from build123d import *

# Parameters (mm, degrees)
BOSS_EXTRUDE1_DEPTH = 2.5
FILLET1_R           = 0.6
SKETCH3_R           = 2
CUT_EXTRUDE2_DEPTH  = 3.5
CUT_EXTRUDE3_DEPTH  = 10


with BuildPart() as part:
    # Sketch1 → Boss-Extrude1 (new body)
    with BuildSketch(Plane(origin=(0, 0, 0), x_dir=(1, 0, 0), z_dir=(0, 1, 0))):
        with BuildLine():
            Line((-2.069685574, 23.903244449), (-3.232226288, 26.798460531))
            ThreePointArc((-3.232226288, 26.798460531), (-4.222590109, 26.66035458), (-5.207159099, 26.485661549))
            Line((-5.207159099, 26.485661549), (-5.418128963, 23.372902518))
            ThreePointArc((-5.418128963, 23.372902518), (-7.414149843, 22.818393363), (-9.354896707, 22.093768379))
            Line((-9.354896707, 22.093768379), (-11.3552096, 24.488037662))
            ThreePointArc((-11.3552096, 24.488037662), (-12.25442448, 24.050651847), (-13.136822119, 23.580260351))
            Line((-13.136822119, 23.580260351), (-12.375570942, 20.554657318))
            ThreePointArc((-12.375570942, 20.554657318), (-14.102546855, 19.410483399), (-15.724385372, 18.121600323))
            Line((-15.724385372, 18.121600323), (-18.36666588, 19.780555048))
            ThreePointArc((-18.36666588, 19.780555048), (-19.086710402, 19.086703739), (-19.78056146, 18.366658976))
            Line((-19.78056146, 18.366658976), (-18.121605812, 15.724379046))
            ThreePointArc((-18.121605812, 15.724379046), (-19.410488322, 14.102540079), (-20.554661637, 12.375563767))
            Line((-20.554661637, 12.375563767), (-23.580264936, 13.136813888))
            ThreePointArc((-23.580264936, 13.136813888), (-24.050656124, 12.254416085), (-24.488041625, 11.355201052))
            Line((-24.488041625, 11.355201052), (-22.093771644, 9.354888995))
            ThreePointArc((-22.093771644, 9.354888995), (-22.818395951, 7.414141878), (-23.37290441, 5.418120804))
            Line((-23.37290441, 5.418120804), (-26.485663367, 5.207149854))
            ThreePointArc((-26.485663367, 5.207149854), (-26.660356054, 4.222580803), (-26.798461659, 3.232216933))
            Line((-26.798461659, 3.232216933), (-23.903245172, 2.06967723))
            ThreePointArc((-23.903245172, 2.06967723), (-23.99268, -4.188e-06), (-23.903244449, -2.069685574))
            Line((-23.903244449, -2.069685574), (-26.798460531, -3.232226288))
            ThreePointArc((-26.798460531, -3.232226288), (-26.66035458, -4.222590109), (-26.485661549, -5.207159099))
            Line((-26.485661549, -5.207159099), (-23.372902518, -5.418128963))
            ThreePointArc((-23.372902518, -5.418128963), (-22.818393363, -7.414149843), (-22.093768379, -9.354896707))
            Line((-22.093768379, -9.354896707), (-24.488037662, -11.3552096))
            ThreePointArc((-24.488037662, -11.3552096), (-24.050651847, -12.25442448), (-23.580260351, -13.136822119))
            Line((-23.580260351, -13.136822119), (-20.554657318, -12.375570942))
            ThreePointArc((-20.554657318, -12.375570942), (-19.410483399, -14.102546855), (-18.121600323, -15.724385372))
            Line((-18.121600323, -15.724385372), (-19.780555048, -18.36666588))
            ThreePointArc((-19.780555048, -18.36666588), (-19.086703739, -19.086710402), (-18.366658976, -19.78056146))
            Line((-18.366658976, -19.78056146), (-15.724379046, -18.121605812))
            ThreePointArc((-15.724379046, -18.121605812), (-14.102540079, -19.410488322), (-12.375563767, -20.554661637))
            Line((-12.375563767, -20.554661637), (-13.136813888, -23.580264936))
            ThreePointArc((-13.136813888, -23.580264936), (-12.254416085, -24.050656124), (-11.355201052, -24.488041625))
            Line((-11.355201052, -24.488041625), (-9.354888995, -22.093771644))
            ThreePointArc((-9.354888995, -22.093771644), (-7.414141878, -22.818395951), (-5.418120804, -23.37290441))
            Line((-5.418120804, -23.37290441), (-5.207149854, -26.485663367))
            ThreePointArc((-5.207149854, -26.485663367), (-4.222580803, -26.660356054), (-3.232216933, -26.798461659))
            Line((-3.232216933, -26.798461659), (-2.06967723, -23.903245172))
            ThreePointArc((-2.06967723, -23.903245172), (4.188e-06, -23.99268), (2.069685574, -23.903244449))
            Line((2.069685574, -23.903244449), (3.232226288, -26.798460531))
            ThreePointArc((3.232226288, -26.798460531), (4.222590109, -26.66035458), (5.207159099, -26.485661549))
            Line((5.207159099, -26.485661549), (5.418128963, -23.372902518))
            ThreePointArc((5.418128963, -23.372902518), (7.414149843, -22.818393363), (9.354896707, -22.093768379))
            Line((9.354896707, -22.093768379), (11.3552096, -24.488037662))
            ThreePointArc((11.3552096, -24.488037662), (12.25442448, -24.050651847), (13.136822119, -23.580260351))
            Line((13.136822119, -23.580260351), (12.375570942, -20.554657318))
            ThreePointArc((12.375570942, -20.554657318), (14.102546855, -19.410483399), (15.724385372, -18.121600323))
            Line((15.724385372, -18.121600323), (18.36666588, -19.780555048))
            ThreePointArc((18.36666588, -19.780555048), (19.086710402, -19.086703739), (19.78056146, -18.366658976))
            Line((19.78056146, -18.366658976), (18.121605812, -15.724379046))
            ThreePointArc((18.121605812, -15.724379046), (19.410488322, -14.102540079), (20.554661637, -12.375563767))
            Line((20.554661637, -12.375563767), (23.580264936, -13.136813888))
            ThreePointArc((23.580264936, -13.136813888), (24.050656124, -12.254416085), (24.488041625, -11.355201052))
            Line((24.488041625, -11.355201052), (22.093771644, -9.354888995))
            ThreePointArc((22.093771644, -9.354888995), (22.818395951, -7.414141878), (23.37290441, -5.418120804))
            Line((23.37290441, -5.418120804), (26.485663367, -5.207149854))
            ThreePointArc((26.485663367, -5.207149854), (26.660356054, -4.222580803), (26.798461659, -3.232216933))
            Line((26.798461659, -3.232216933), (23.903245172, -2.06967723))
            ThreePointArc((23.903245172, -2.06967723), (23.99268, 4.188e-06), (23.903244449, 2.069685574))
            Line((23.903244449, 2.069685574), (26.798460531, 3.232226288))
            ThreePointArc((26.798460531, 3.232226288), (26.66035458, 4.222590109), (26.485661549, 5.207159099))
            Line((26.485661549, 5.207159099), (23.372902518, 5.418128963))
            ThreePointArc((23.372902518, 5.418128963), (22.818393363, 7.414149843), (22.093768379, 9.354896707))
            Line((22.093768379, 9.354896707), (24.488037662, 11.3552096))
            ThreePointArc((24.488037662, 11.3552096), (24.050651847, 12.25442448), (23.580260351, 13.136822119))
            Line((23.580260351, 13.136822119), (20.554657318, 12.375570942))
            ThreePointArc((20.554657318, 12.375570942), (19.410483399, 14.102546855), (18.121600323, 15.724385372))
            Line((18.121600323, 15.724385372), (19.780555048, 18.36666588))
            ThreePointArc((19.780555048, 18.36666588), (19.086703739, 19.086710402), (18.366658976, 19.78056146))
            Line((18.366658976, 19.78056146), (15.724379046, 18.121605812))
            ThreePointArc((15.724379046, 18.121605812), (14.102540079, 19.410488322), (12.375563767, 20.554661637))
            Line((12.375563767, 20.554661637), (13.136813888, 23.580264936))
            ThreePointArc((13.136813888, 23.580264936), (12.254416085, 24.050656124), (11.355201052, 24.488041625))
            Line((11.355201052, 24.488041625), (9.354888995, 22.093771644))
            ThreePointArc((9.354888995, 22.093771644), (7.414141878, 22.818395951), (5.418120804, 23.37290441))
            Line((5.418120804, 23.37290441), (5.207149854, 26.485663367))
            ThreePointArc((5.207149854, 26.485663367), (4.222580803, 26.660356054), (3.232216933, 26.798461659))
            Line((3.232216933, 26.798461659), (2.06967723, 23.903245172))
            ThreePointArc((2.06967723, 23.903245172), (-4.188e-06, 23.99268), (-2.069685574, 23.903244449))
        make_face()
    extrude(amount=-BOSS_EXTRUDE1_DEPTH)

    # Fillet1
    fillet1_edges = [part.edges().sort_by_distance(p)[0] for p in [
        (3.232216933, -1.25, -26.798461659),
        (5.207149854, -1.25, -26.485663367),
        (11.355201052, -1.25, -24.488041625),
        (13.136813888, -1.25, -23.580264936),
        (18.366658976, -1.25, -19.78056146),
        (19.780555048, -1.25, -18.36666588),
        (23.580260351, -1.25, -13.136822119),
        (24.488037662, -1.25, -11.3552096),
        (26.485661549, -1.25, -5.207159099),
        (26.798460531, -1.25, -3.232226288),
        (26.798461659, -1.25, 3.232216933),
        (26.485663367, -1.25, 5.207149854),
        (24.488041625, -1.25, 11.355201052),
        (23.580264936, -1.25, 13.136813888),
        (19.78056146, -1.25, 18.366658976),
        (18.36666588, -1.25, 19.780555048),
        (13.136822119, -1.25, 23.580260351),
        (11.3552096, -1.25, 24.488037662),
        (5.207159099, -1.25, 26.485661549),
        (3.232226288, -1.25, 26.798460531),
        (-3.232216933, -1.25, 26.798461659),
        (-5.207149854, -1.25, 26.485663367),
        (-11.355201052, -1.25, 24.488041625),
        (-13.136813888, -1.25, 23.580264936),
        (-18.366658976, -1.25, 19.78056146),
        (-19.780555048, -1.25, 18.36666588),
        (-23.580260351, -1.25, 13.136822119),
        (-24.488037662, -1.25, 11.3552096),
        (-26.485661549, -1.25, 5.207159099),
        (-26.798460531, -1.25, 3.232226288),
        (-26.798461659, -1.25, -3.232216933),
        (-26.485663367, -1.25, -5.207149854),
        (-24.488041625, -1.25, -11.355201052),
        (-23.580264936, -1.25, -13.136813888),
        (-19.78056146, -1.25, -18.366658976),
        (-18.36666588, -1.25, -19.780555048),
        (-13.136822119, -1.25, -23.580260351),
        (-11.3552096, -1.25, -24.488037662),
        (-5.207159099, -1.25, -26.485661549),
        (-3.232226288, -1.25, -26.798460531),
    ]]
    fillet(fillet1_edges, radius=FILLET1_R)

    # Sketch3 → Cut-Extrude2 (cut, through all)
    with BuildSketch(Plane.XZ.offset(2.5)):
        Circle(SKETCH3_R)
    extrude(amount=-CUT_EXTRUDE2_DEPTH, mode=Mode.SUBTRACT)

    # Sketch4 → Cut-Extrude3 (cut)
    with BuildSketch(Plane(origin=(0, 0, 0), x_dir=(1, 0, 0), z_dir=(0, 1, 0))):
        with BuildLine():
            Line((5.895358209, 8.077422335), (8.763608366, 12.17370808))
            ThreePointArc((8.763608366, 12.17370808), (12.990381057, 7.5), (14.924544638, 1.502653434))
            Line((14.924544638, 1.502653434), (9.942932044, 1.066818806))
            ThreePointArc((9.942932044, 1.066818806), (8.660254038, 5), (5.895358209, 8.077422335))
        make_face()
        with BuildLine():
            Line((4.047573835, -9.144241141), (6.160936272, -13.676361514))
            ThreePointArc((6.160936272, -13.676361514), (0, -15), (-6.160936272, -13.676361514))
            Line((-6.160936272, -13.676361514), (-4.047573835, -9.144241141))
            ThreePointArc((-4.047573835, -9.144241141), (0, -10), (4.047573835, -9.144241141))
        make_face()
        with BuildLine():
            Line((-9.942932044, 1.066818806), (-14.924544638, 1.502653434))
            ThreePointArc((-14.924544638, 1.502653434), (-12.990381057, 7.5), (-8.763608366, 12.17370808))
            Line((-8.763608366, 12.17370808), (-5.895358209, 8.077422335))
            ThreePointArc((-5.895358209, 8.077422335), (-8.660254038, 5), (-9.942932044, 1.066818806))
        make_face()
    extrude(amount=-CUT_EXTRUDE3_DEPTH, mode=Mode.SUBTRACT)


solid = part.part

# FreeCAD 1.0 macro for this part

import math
import FreeCAD as App
import Part
import Sketcher
Q = App.Units.Quantity


def edges_at(feature, points):
    """Names of the edges that pass closest to the given points."""
    edges = feature.Shape.Edges
    near = lambda p: min(range(len(edges)), key=lambda i: edges[i].distToShape(Part.Vertex(*p))[0])
    return sorted({f"Edge{near(p) + 1}" for p in points})

doc = App.newDocument("Part")
params = doc.addObject("Spreadsheet::Sheet", "Params")
for row, (alias, value) in enumerate([
    ("pad1_length", "2.5 mm"),
    ("fillet_radius", "0.6 mm"),
    ("sketch2_diameter", "4 mm"),
    ("sketch3_radius", "10 mm"),
    ("sketch3_radius2", "15 mm"),
    ("pocket2_length", "10 mm"),
], start=1):
    params.set(f"A{row}", alias)
    params.set(f"B{row}", "=" + value)
    params.setAlias(f"B{row}", alias)

body = doc.addObject("PartDesign::Body", "Body")

# Sketch on XZ plane
sketch1 = doc.addObject("Sketcher::SketchObject", "Sketch")
body.addObject(sketch1)
sketch1.AttachmentSupport = (doc.XZ_Plane, [""])
sketch1.MapMode = "FlatFace"
sketch1.addGeometry(Part.LineSegment(App.Vector(-2.1, -23.9, 0), App.Vector(-3.2, -26.8, 0)), False)
sketch1.addGeometry(Part.ArcOfCircle(Part.Circle(App.Vector(0, 0, 0), App.Vector(0, 0, 1), 27), math.radians(-101.12), math.radians(-96.88)), False)
sketch1.addGeometry(Part.LineSegment(App.Vector(-5.2, -26.5, 0), App.Vector(-5.4, -23.4, 0)), False)
sketch1.addGeometry(Part.ArcOfCircle(Part.Circle(App.Vector(0, 0, 0), App.Vector(0, 0, 1), 24), math.radians(-112.95), math.radians(-103.05)), False)
sketch1.addGeometry(Part.LineSegment(App.Vector(-9.4, -22.1, 0), App.Vector(-11.4, -24.5, 0)), False)
sketch1.addGeometry(Part.ArcOfCircle(Part.Circle(App.Vector(0, 0, 0), App.Vector(0, 0, 1), 27), math.radians(-119.12), math.radians(-114.88)), False)
sketch1.addGeometry(Part.LineSegment(App.Vector(-13.1, -23.6, 0), App.Vector(-12.4, -20.6, 0)), False)
sketch1.addGeometry(Part.ArcOfCircle(Part.Circle(App.Vector(0, 0, 0), App.Vector(0, 0, 1), 24), math.radians(-130.95), math.radians(-121.05)), False)
sketch1.addGeometry(Part.LineSegment(App.Vector(-15.7, -18.1, 0), App.Vector(-18.4, -19.8, 0)), False)
sketch1.addGeometry(Part.ArcOfCircle(Part.Circle(App.Vector(0, 0, 0), App.Vector(0, 0, 1), 27), math.radians(-137.12), math.radians(-132.88)), False)
sketch1.addGeometry(Part.LineSegment(App.Vector(-19.8, -18.4, 0), App.Vector(-18.1, -15.7, 0)), False)
sketch1.addGeometry(Part.ArcOfCircle(Part.Circle(App.Vector(0, 0, 0), App.Vector(0, 0, 1), 24), math.radians(-148.95), math.radians(-139.05)), False)
sketch1.addGeometry(Part.LineSegment(App.Vector(-20.6, -12.4, 0), App.Vector(-23.6, -13.1, 0)), False)
sketch1.addGeometry(Part.ArcOfCircle(Part.Circle(App.Vector(0, 0, 0), App.Vector(0, 0, 1), 27), math.radians(-155.12), math.radians(-150.88)), False)
sketch1.addGeometry(Part.LineSegment(App.Vector(-24.5, -11.4, 0), App.Vector(-22.1, -9.4, 0)), False)
sketch1.addGeometry(Part.ArcOfCircle(Part.Circle(App.Vector(0, 0, 0), App.Vector(0, 0, 1), 24), math.radians(-166.95), math.radians(-157.05)), False)
sketch1.addGeometry(Part.LineSegment(App.Vector(-23.4, -5.4, 0), App.Vector(-26.5, -5.2, 0)), False)
sketch1.addGeometry(Part.ArcOfCircle(Part.Circle(App.Vector(0, 0, 0), App.Vector(0, 0, 1), 27), math.radians(-173.12), math.radians(-168.88)), False)
sketch1.addGeometry(Part.LineSegment(App.Vector(-26.8, -3.2, 0), App.Vector(-23.9, -2.1, 0)), False)
sketch1.addGeometry(Part.ArcOfCircle(Part.Circle(App.Vector(0, 0, 0), App.Vector(0, 0, 1), 24), math.radians(175.05), math.radians(184.95)), False)
sketch1.addGeometry(Part.LineSegment(App.Vector(-23.9, 2.1, 0), App.Vector(-26.8, 3.2, 0)), False)
sketch1.addGeometry(Part.ArcOfCircle(Part.Circle(App.Vector(0, 0, 0), App.Vector(0, 0, 1), 27), math.radians(168.88), math.radians(173.12)), False)
sketch1.addGeometry(Part.LineSegment(App.Vector(-26.5, 5.2, 0), App.Vector(-23.4, 5.4, 0)), False)
sketch1.addGeometry(Part.ArcOfCircle(Part.Circle(App.Vector(0, 0, 0), App.Vector(0, 0, 1), 24), math.radians(157.05), math.radians(166.95)), False)
sketch1.addGeometry(Part.LineSegment(App.Vector(-22.1, 9.4, 0), App.Vector(-24.5, 11.4, 0)), False)
sketch1.addGeometry(Part.ArcOfCircle(Part.Circle(App.Vector(0, 0, 0), App.Vector(0, 0, 1), 27), math.radians(150.88), math.radians(155.12)), False)
sketch1.addGeometry(Part.LineSegment(App.Vector(-23.6, 13.1, 0), App.Vector(-20.6, 12.4, 0)), False)
sketch1.addGeometry(Part.ArcOfCircle(Part.Circle(App.Vector(0, 0, 0), App.Vector(0, 0, 1), 24), math.radians(139.05), math.radians(148.95)), False)
sketch1.addGeometry(Part.LineSegment(App.Vector(-18.1, 15.7, 0), App.Vector(-19.8, 18.4, 0)), False)
sketch1.addGeometry(Part.ArcOfCircle(Part.Circle(App.Vector(0, 0, 0), App.Vector(0, 0, 1), 27), math.radians(132.88), math.radians(137.12)), False)
sketch1.addGeometry(Part.LineSegment(App.Vector(-18.4, 19.8, 0), App.Vector(-15.7, 18.1, 0)), False)
sketch1.addGeometry(Part.ArcOfCircle(Part.Circle(App.Vector(0, 0, 0), App.Vector(0, 0, 1), 24), math.radians(121.05), math.radians(130.95)), False)
sketch1.addGeometry(Part.LineSegment(App.Vector(-12.4, 20.6, 0), App.Vector(-13.1, 23.6, 0)), False)
sketch1.addGeometry(Part.ArcOfCircle(Part.Circle(App.Vector(0, 0, 0), App.Vector(0, 0, 1), 27), math.radians(114.88), math.radians(119.12)), False)
sketch1.addGeometry(Part.LineSegment(App.Vector(-11.4, 24.5, 0), App.Vector(-9.4, 22.1, 0)), False)
sketch1.addGeometry(Part.ArcOfCircle(Part.Circle(App.Vector(0, 0, 0), App.Vector(0, 0, 1), 24), math.radians(103.05), math.radians(112.95)), False)
sketch1.addGeometry(Part.LineSegment(App.Vector(-5.4, 23.4, 0), App.Vector(-5.2, 26.5, 0)), False)
sketch1.addGeometry(Part.ArcOfCircle(Part.Circle(App.Vector(0, 0, 0), App.Vector(0, 0, 1), 27), math.radians(96.88), math.radians(101.12)), False)
sketch1.addGeometry(Part.LineSegment(App.Vector(-3.2, 26.8, 0), App.Vector(-2.1, 23.9, 0)), False)
sketch1.addGeometry(Part.ArcOfCircle(Part.Circle(App.Vector(0, 0, 0), App.Vector(0, 0, 1), 24), math.radians(85.05), math.radians(94.95)), False)
sketch1.addGeometry(Part.LineSegment(App.Vector(2.1, 23.9, 0), App.Vector(3.2, 26.8, 0)), False)
sketch1.addGeometry(Part.ArcOfCircle(Part.Circle(App.Vector(0, 0, 0), App.Vector(0, 0, 1), 27), math.radians(78.88), math.radians(83.12)), False)
sketch1.addGeometry(Part.LineSegment(App.Vector(5.2, 26.5, 0), App.Vector(5.4, 23.4, 0)), False)
sketch1.addGeometry(Part.ArcOfCircle(Part.Circle(App.Vector(0, 0, 0), App.Vector(0, 0, 1), 24), math.radians(67.05), math.radians(76.95)), False)
sketch1.addGeometry(Part.LineSegment(App.Vector(9.4, 22.1, 0), App.Vector(11.4, 24.5, 0)), False)
sketch1.addGeometry(Part.ArcOfCircle(Part.Circle(App.Vector(0, 0, 0), App.Vector(0, 0, 1), 27), math.radians(60.88), math.radians(65.12)), False)
sketch1.addGeometry(Part.LineSegment(App.Vector(13.1, 23.6, 0), App.Vector(12.4, 20.6, 0)), False)
sketch1.addGeometry(Part.ArcOfCircle(Part.Circle(App.Vector(0, 0, 0), App.Vector(0, 0, 1), 24), math.radians(49.05), math.radians(58.95)), False)
sketch1.addGeometry(Part.LineSegment(App.Vector(15.7, 18.1, 0), App.Vector(18.4, 19.8, 0)), False)
sketch1.addGeometry(Part.ArcOfCircle(Part.Circle(App.Vector(0, 0, 0), App.Vector(0, 0, 1), 27), math.radians(42.88), math.radians(47.12)), False)
sketch1.addGeometry(Part.LineSegment(App.Vector(19.8, 18.4, 0), App.Vector(18.1, 15.7, 0)), False)
sketch1.addGeometry(Part.ArcOfCircle(Part.Circle(App.Vector(0, 0, 0), App.Vector(0, 0, 1), 24), math.radians(31.05), math.radians(40.95)), False)
sketch1.addGeometry(Part.LineSegment(App.Vector(20.6, 12.4, 0), App.Vector(23.6, 13.1, 0)), False)
sketch1.addGeometry(Part.ArcOfCircle(Part.Circle(App.Vector(0, 0, 0), App.Vector(0, 0, 1), 27), math.radians(24.88), math.radians(29.12)), False)
sketch1.addGeometry(Part.LineSegment(App.Vector(24.5, 11.4, 0), App.Vector(22.1, 9.4, 0)), False)
sketch1.addGeometry(Part.ArcOfCircle(Part.Circle(App.Vector(0, 0, 0), App.Vector(0, 0, 1), 24), math.radians(13.05), math.radians(22.95)), False)
sketch1.addGeometry(Part.LineSegment(App.Vector(23.4, 5.4, 0), App.Vector(26.5, 5.2, 0)), False)
sketch1.addGeometry(Part.ArcOfCircle(Part.Circle(App.Vector(0, 0, 0), App.Vector(0, 0, 1), 27), math.radians(6.88), math.radians(11.12)), False)
sketch1.addGeometry(Part.LineSegment(App.Vector(26.8, 3.2, 0), App.Vector(23.9, 2.1, 0)), False)
sketch1.addGeometry(Part.ArcOfCircle(Part.Circle(App.Vector(0, 0, 0), App.Vector(0, 0, 1), 24), math.radians(-4.95), math.radians(4.95)), False)
sketch1.addGeometry(Part.LineSegment(App.Vector(23.9, -2.1, 0), App.Vector(26.8, -3.2, 0)), False)
sketch1.addGeometry(Part.ArcOfCircle(Part.Circle(App.Vector(0, 0, 0), App.Vector(0, 0, 1), 27), math.radians(-11.12), math.radians(-6.88)), False)
sketch1.addGeometry(Part.LineSegment(App.Vector(26.5, -5.2, 0), App.Vector(23.4, -5.4, 0)), False)
sketch1.addGeometry(Part.ArcOfCircle(Part.Circle(App.Vector(0, 0, 0), App.Vector(0, 0, 1), 24), math.radians(-22.95), math.radians(-13.05)), False)
sketch1.addGeometry(Part.LineSegment(App.Vector(22.1, -9.4, 0), App.Vector(24.5, -11.4, 0)), False)
sketch1.addGeometry(Part.ArcOfCircle(Part.Circle(App.Vector(0, 0, 0), App.Vector(0, 0, 1), 27), math.radians(-29.12), math.radians(-24.88)), False)
sketch1.addGeometry(Part.LineSegment(App.Vector(23.6, -13.1, 0), App.Vector(20.6, -12.4, 0)), False)
sketch1.addGeometry(Part.ArcOfCircle(Part.Circle(App.Vector(0, 0, 0), App.Vector(0, 0, 1), 24), math.radians(-40.95), math.radians(-31.05)), False)
sketch1.addGeometry(Part.LineSegment(App.Vector(18.1, -15.7, 0), App.Vector(19.8, -18.4, 0)), False)
sketch1.addGeometry(Part.ArcOfCircle(Part.Circle(App.Vector(0, 0, 0), App.Vector(0, 0, 1), 27), math.radians(-47.12), math.radians(-42.88)), False)
sketch1.addGeometry(Part.LineSegment(App.Vector(18.4, -19.8, 0), App.Vector(15.7, -18.1, 0)), False)
sketch1.addGeometry(Part.ArcOfCircle(Part.Circle(App.Vector(0, 0, 0), App.Vector(0, 0, 1), 24), math.radians(-58.95), math.radians(-49.05)), False)
sketch1.addGeometry(Part.LineSegment(App.Vector(12.4, -20.6, 0), App.Vector(13.1, -23.6, 0)), False)
sketch1.addGeometry(Part.ArcOfCircle(Part.Circle(App.Vector(0, 0, 0), App.Vector(0, 0, 1), 27), math.radians(-65.12), math.radians(-60.88)), False)
sketch1.addGeometry(Part.LineSegment(App.Vector(11.4, -24.5, 0), App.Vector(9.4, -22.1, 0)), False)
sketch1.addGeometry(Part.ArcOfCircle(Part.Circle(App.Vector(0, 0, 0), App.Vector(0, 0, 1), 24), math.radians(-76.95), math.radians(-67.05)), False)
sketch1.addGeometry(Part.LineSegment(App.Vector(5.4, -23.4, 0), App.Vector(5.2, -26.5, 0)), False)
sketch1.addGeometry(Part.ArcOfCircle(Part.Circle(App.Vector(0, 0, 0), App.Vector(0, 0, 1), 27), math.radians(-83.12), math.radians(-78.88)), False)
sketch1.addGeometry(Part.LineSegment(App.Vector(3.2, -26.8, 0), App.Vector(2.1, -23.9, 0)), False)
sketch1.addGeometry(Part.ArcOfCircle(Part.Circle(App.Vector(0, 0, 0), App.Vector(0, 0, 1), 24), math.radians(-94.95), math.radians(-85.05)), False)
sketch1.addConstraint(Sketcher.Constraint("Coincident", 0, 2, 1, 2))
sketch1.addConstraint(Sketcher.Constraint("Coincident", 1, 1, 2, 1))
sketch1.addConstraint(Sketcher.Constraint("Coincident", 2, 2, 3, 2))
sketch1.addConstraint(Sketcher.Constraint("Coincident", 3, 1, 4, 1))
sketch1.addConstraint(Sketcher.Constraint("Coincident", 4, 2, 5, 2))
sketch1.addConstraint(Sketcher.Constraint("Coincident", 5, 1, 6, 1))
sketch1.addConstraint(Sketcher.Constraint("Coincident", 6, 2, 7, 2))
sketch1.addConstraint(Sketcher.Constraint("Coincident", 7, 1, 8, 1))
sketch1.addConstraint(Sketcher.Constraint("Coincident", 8, 2, 9, 2))
sketch1.addConstraint(Sketcher.Constraint("Coincident", 9, 1, 10, 1))
sketch1.addConstraint(Sketcher.Constraint("Coincident", 10, 2, 11, 2))
sketch1.addConstraint(Sketcher.Constraint("Coincident", 11, 1, 12, 1))
sketch1.addConstraint(Sketcher.Constraint("Coincident", 12, 2, 13, 2))
sketch1.addConstraint(Sketcher.Constraint("Coincident", 13, 1, 14, 1))
sketch1.addConstraint(Sketcher.Constraint("Coincident", 14, 2, 15, 2))
sketch1.addConstraint(Sketcher.Constraint("Coincident", 15, 1, 16, 1))
sketch1.addConstraint(Sketcher.Constraint("Coincident", 16, 2, 17, 2))
sketch1.addConstraint(Sketcher.Constraint("Coincident", 17, 1, 18, 1))
sketch1.addConstraint(Sketcher.Constraint("Coincident", 18, 2, 19, 2))
sketch1.addConstraint(Sketcher.Constraint("Coincident", 19, 1, 20, 1))
sketch1.addConstraint(Sketcher.Constraint("Coincident", 20, 2, 21, 2))
sketch1.addConstraint(Sketcher.Constraint("Coincident", 21, 1, 22, 1))
sketch1.addConstraint(Sketcher.Constraint("Coincident", 22, 2, 23, 2))
sketch1.addConstraint(Sketcher.Constraint("Coincident", 23, 1, 24, 1))
sketch1.addConstraint(Sketcher.Constraint("Coincident", 24, 2, 25, 2))
sketch1.addConstraint(Sketcher.Constraint("Coincident", 25, 1, 26, 1))
sketch1.addConstraint(Sketcher.Constraint("Coincident", 26, 2, 27, 2))
sketch1.addConstraint(Sketcher.Constraint("Coincident", 27, 1, 28, 1))
sketch1.addConstraint(Sketcher.Constraint("Coincident", 28, 2, 29, 2))
sketch1.addConstraint(Sketcher.Constraint("Coincident", 29, 1, 30, 1))
sketch1.addConstraint(Sketcher.Constraint("Coincident", 30, 2, 31, 2))
sketch1.addConstraint(Sketcher.Constraint("Coincident", 31, 1, 32, 1))
sketch1.addConstraint(Sketcher.Constraint("Coincident", 32, 2, 33, 2))
sketch1.addConstraint(Sketcher.Constraint("Coincident", 33, 1, 34, 1))
sketch1.addConstraint(Sketcher.Constraint("Coincident", 34, 2, 35, 2))
sketch1.addConstraint(Sketcher.Constraint("Coincident", 35, 1, 36, 1))
sketch1.addConstraint(Sketcher.Constraint("Coincident", 36, 2, 37, 2))
sketch1.addConstraint(Sketcher.Constraint("Coincident", 37, 1, 38, 1))
sketch1.addConstraint(Sketcher.Constraint("Coincident", 38, 2, 39, 2))
sketch1.addConstraint(Sketcher.Constraint("Coincident", 39, 1, 40, 1))
sketch1.addConstraint(Sketcher.Constraint("Coincident", 40, 2, 41, 2))
sketch1.addConstraint(Sketcher.Constraint("Coincident", 41, 1, 42, 1))
sketch1.addConstraint(Sketcher.Constraint("Coincident", 42, 2, 43, 2))
sketch1.addConstraint(Sketcher.Constraint("Coincident", 43, 1, 44, 1))
sketch1.addConstraint(Sketcher.Constraint("Coincident", 44, 2, 45, 2))
sketch1.addConstraint(Sketcher.Constraint("Coincident", 45, 1, 46, 1))
sketch1.addConstraint(Sketcher.Constraint("Coincident", 46, 2, 47, 2))
sketch1.addConstraint(Sketcher.Constraint("Coincident", 47, 1, 48, 1))
sketch1.addConstraint(Sketcher.Constraint("Coincident", 48, 2, 49, 2))
sketch1.addConstraint(Sketcher.Constraint("Coincident", 49, 1, 50, 1))
sketch1.addConstraint(Sketcher.Constraint("Coincident", 50, 2, 51, 2))
sketch1.addConstraint(Sketcher.Constraint("Coincident", 51, 1, 52, 1))
sketch1.addConstraint(Sketcher.Constraint("Coincident", 52, 2, 53, 2))
sketch1.addConstraint(Sketcher.Constraint("Coincident", 53, 1, 54, 1))
sketch1.addConstraint(Sketcher.Constraint("Coincident", 54, 2, 55, 2))
sketch1.addConstraint(Sketcher.Constraint("Coincident", 55, 1, 56, 1))
sketch1.addConstraint(Sketcher.Constraint("Coincident", 56, 2, 57, 2))
sketch1.addConstraint(Sketcher.Constraint("Coincident", 57, 1, 58, 1))
sketch1.addConstraint(Sketcher.Constraint("Coincident", 58, 2, 59, 2))
sketch1.addConstraint(Sketcher.Constraint("Coincident", 59, 1, 60, 1))
sketch1.addConstraint(Sketcher.Constraint("Coincident", 60, 2, 61, 2))
sketch1.addConstraint(Sketcher.Constraint("Coincident", 61, 1, 62, 1))
sketch1.addConstraint(Sketcher.Constraint("Coincident", 62, 2, 63, 2))
sketch1.addConstraint(Sketcher.Constraint("Coincident", 63, 1, 64, 1))
sketch1.addConstraint(Sketcher.Constraint("Coincident", 64, 2, 65, 2))
sketch1.addConstraint(Sketcher.Constraint("Coincident", 65, 1, 66, 1))
sketch1.addConstraint(Sketcher.Constraint("Coincident", 66, 2, 67, 2))
sketch1.addConstraint(Sketcher.Constraint("Coincident", 67, 1, 68, 1))
sketch1.addConstraint(Sketcher.Constraint("Coincident", 68, 2, 69, 2))
sketch1.addConstraint(Sketcher.Constraint("Coincident", 69, 1, 70, 1))
sketch1.addConstraint(Sketcher.Constraint("Coincident", 70, 2, 71, 2))
sketch1.addConstraint(Sketcher.Constraint("Coincident", 71, 1, 72, 1))
sketch1.addConstraint(Sketcher.Constraint("Coincident", 72, 2, 73, 2))
sketch1.addConstraint(Sketcher.Constraint("Coincident", 73, 1, 74, 1))
sketch1.addConstraint(Sketcher.Constraint("Coincident", 74, 2, 75, 2))
sketch1.addConstraint(Sketcher.Constraint("Coincident", 75, 1, 76, 1))
sketch1.addConstraint(Sketcher.Constraint("Coincident", 76, 2, 77, 2))
sketch1.addConstraint(Sketcher.Constraint("Coincident", 77, 1, 78, 1))
sketch1.addConstraint(Sketcher.Constraint("Coincident", 78, 2, 79, 2))
sketch1.addConstraint(Sketcher.Constraint("Coincident", 79, 1, 0, 1))
sketch1.addConstraint(Sketcher.Constraint("Coincident", 1, 3, -1, 1))
sketch1.addConstraint(Sketcher.Constraint("Coincident", 3, 3, -1, 1))
sketch1.addConstraint(Sketcher.Constraint("Coincident", 5, 3, -1, 1))
sketch1.addConstraint(Sketcher.Constraint("Coincident", 7, 3, -1, 1))
sketch1.addConstraint(Sketcher.Constraint("Coincident", 9, 3, -1, 1))
sketch1.addConstraint(Sketcher.Constraint("Coincident", 11, 3, -1, 1))
sketch1.addConstraint(Sketcher.Constraint("Coincident", 13, 3, -1, 1))
sketch1.addConstraint(Sketcher.Constraint("Coincident", 15, 3, -1, 1))
sketch1.addConstraint(Sketcher.Constraint("Coincident", 17, 3, -1, 1))
sketch1.addConstraint(Sketcher.Constraint("Coincident", 19, 3, -1, 1))
sketch1.addConstraint(Sketcher.Constraint("Coincident", 21, 3, -1, 1))
sketch1.addConstraint(Sketcher.Constraint("Coincident", 23, 3, -1, 1))
sketch1.addConstraint(Sketcher.Constraint("Coincident", 25, 3, -1, 1))
sketch1.addConstraint(Sketcher.Constraint("Coincident", 27, 3, -1, 1))
sketch1.addConstraint(Sketcher.Constraint("Coincident", 29, 3, -1, 1))
sketch1.addConstraint(Sketcher.Constraint("Coincident", 31, 3, -1, 1))
sketch1.addConstraint(Sketcher.Constraint("Coincident", 33, 3, -1, 1))
sketch1.addConstraint(Sketcher.Constraint("Coincident", 35, 3, -1, 1))
sketch1.addConstraint(Sketcher.Constraint("Coincident", 37, 3, -1, 1))
sketch1.addConstraint(Sketcher.Constraint("Coincident", 39, 3, -1, 1))
sketch1.addConstraint(Sketcher.Constraint("Coincident", 41, 3, -1, 1))
sketch1.addConstraint(Sketcher.Constraint("Coincident", 43, 3, -1, 1))
sketch1.addConstraint(Sketcher.Constraint("Coincident", 45, 3, -1, 1))
sketch1.addConstraint(Sketcher.Constraint("Coincident", 47, 3, -1, 1))
sketch1.addConstraint(Sketcher.Constraint("Coincident", 49, 3, -1, 1))
sketch1.addConstraint(Sketcher.Constraint("Coincident", 51, 3, -1, 1))
sketch1.addConstraint(Sketcher.Constraint("Coincident", 53, 3, -1, 1))
sketch1.addConstraint(Sketcher.Constraint("Coincident", 55, 3, -1, 1))
sketch1.addConstraint(Sketcher.Constraint("Coincident", 57, 3, -1, 1))
sketch1.addConstraint(Sketcher.Constraint("Coincident", 59, 3, -1, 1))
sketch1.addConstraint(Sketcher.Constraint("Coincident", 61, 3, -1, 1))
sketch1.addConstraint(Sketcher.Constraint("Coincident", 63, 3, -1, 1))
sketch1.addConstraint(Sketcher.Constraint("Coincident", 65, 3, -1, 1))
sketch1.addConstraint(Sketcher.Constraint("Coincident", 67, 3, -1, 1))
sketch1.addConstraint(Sketcher.Constraint("Coincident", 69, 3, -1, 1))
sketch1.addConstraint(Sketcher.Constraint("Coincident", 71, 3, -1, 1))
sketch1.addConstraint(Sketcher.Constraint("Coincident", 73, 3, -1, 1))
sketch1.addConstraint(Sketcher.Constraint("Coincident", 75, 3, -1, 1))
sketch1.addConstraint(Sketcher.Constraint("Coincident", 77, 3, -1, 1))
sketch1.addConstraint(Sketcher.Constraint("Coincident", 79, 3, -1, 1))
sketch1.addConstraint(Sketcher.Constraint("Equal", 1, 5))
sketch1.addConstraint(Sketcher.Constraint("Equal", 3, 7))
sketch1.addConstraint(Sketcher.Constraint("Equal", 5, 9))
sketch1.addConstraint(Sketcher.Constraint("Equal", 7, 11))
sketch1.addConstraint(Sketcher.Constraint("Equal", 9, 13))
sketch1.addConstraint(Sketcher.Constraint("Equal", 11, 15))
sketch1.addConstraint(Sketcher.Constraint("Equal", 13, 17))
sketch1.addConstraint(Sketcher.Constraint("Equal", 15, 19))
sketch1.addConstraint(Sketcher.Constraint("Equal", 17, 21))
sketch1.addConstraint(Sketcher.Constraint("Equal", 19, 23))
sketch1.addConstraint(Sketcher.Constraint("Equal", 21, 25))
sketch1.addConstraint(Sketcher.Constraint("Equal", 23, 27))
sketch1.addConstraint(Sketcher.Constraint("Equal", 25, 29))
sketch1.addConstraint(Sketcher.Constraint("Equal", 27, 31))
sketch1.addConstraint(Sketcher.Constraint("Equal", 29, 33))
sketch1.addConstraint(Sketcher.Constraint("Equal", 31, 35))
sketch1.addConstraint(Sketcher.Constraint("Equal", 33, 37))
sketch1.addConstraint(Sketcher.Constraint("Equal", 35, 39))
sketch1.addConstraint(Sketcher.Constraint("Equal", 37, 41))
sketch1.addConstraint(Sketcher.Constraint("Equal", 39, 43))
sketch1.addConstraint(Sketcher.Constraint("Equal", 41, 45))
sketch1.addConstraint(Sketcher.Constraint("Equal", 43, 47))
sketch1.addConstraint(Sketcher.Constraint("Equal", 45, 49))
sketch1.addConstraint(Sketcher.Constraint("Equal", 47, 51))
sketch1.addConstraint(Sketcher.Constraint("Equal", 49, 53))
sketch1.addConstraint(Sketcher.Constraint("Equal", 51, 55))
sketch1.addConstraint(Sketcher.Constraint("Equal", 53, 57))
sketch1.addConstraint(Sketcher.Constraint("Equal", 55, 59))
sketch1.addConstraint(Sketcher.Constraint("Equal", 57, 61))
sketch1.addConstraint(Sketcher.Constraint("Equal", 59, 63))
sketch1.addConstraint(Sketcher.Constraint("Equal", 61, 65))
sketch1.addConstraint(Sketcher.Constraint("Equal", 63, 67))
sketch1.addConstraint(Sketcher.Constraint("Equal", 65, 69))
sketch1.addConstraint(Sketcher.Constraint("Equal", 67, 71))
sketch1.addConstraint(Sketcher.Constraint("Equal", 69, 73))
sketch1.addConstraint(Sketcher.Constraint("Equal", 71, 75))
sketch1.addConstraint(Sketcher.Constraint("Equal", 73, 77))
sketch1.addConstraint(Sketcher.Constraint("Equal", 75, 79))
sketch1.addConstraint(Sketcher.Constraint("Perpendicular", 0, 20))
sketch1.addConstraint(Sketcher.Constraint("Perpendicular", 2, 22))
sketch1.addConstraint(Sketcher.Constraint("Perpendicular", 4, 24))
sketch1.addConstraint(Sketcher.Constraint("Perpendicular", 6, 26))
sketch1.addConstraint(Sketcher.Constraint("Perpendicular", 8, 28))
sketch1.addConstraint(Sketcher.Constraint("Perpendicular", 10, 30))
sketch1.addConstraint(Sketcher.Constraint("Perpendicular", 12, 32))
sketch1.addConstraint(Sketcher.Constraint("Perpendicular", 14, 34))
sketch1.addConstraint(Sketcher.Constraint("Perpendicular", 16, 36))
sketch1.addConstraint(Sketcher.Constraint("Perpendicular", 18, 38))
sketch1.addConstraint(Sketcher.Constraint("Perpendicular", 20, 40))
sketch1.addConstraint(Sketcher.Constraint("Perpendicular", 22, 42))
sketch1.addConstraint(Sketcher.Constraint("Perpendicular", 24, 44))
sketch1.addConstraint(Sketcher.Constraint("Perpendicular", 26, 46))
sketch1.addConstraint(Sketcher.Constraint("Perpendicular", 28, 48))
sketch1.addConstraint(Sketcher.Constraint("Perpendicular", 30, 50))
sketch1.addConstraint(Sketcher.Constraint("Perpendicular", 32, 52))
sketch1.addConstraint(Sketcher.Constraint("Perpendicular", 34, 54))
sketch1.addConstraint(Sketcher.Constraint("Perpendicular", 36, 56))
sketch1.addConstraint(Sketcher.Constraint("Perpendicular", 38, 58))
sketch1.addConstraint(Sketcher.Constraint("Perpendicular", 40, 60))
sketch1.addConstraint(Sketcher.Constraint("Perpendicular", 42, 62))
sketch1.addConstraint(Sketcher.Constraint("Perpendicular", 44, 64))
sketch1.addConstraint(Sketcher.Constraint("Perpendicular", 46, 66))
sketch1.addConstraint(Sketcher.Constraint("Perpendicular", 48, 68))
sketch1.addConstraint(Sketcher.Constraint("Perpendicular", 50, 70))
sketch1.addConstraint(Sketcher.Constraint("Perpendicular", 52, 72))
sketch1.addConstraint(Sketcher.Constraint("Perpendicular", 54, 74))
sketch1.addConstraint(Sketcher.Constraint("Perpendicular", 56, 76))
sketch1.addConstraint(Sketcher.Constraint("Perpendicular", 58, 78))
sketch1.addConstraint(Sketcher.Constraint("Horizontal", 38, 2, 39, 1))
sketch1.addConstraint(Sketcher.Constraint("Horizontal", 37, 1, 40, 2))
sketch1.addConstraint(Sketcher.Constraint("Horizontal", 36, 2, 41, 1))
sketch1.addConstraint(Sketcher.Constraint("Horizontal", 35, 1, 42, 2))
sketch1.addConstraint(Sketcher.Constraint("Horizontal", 2, 2, 75, 1))
sketch1.addConstraint(Sketcher.Constraint("Horizontal", 0, 2, 77, 1))
sketch1.addConstraint(Sketcher.Constraint("Vertical", 18, 2, 19, 1))
sketch1.addConstraint(Sketcher.Constraint("Vertical", 16, 2, 21, 1))
sketch1.addConstraint(Sketcher.Constraint("Vertical", 58, 2, 59, 1))
sketch1.addConstraint(Sketcher.Constraint("Vertical", 56, 2, 61, 1))
sketch1.addConstraint(Sketcher.Constraint("Equal", 0, 2))
sketch1.addConstraint(Sketcher.Constraint("Equal", 2, 4))
sketch1.addConstraint(Sketcher.Constraint("Equal", 4, 6))
sketch1.addConstraint(Sketcher.Constraint("Equal", 6, 8))
sketch1.addConstraint(Sketcher.Constraint("Equal", 8, 10))
sketch1.addConstraint(Sketcher.Constraint("Equal", 10, 12))
sketch1.addConstraint(Sketcher.Constraint("Equal", 12, 14))
sketch1.addConstraint(Sketcher.Constraint("Equal", 14, 16))
sketch1.addConstraint(Sketcher.Constraint("Equal", 16, 18))
sketch1.addConstraint(Sketcher.Constraint("Equal", 22, 24))
sketch1.addConstraint(Sketcher.Constraint("Equal", 24, 26))
sketch1.addConstraint(Sketcher.Constraint("Equal", 26, 28))
sketch1.addConstraint(Sketcher.Constraint("Equal", 28, 30))
sketch1.addConstraint(Sketcher.Constraint("Equal", 30, 32))
sketch1.addConstraint(Sketcher.Constraint("Equal", 32, 34))
sketch1.addConstraint(Sketcher.Constraint("Equal", 34, 36))
sketch1.addConstraint(Sketcher.Constraint("Equal", 36, 38))
sketch1.addConstraint(Sketcher.Constraint("Equal", 42, 44))
sketch1.addConstraint(Sketcher.Constraint("Equal", 44, 46))
sketch1.addConstraint(Sketcher.Constraint("Equal", 46, 48))
sketch1.addConstraint(Sketcher.Constraint("Equal", 48, 50))
sketch1.addConstraint(Sketcher.Constraint("Equal", 50, 52))
sketch1.addConstraint(Sketcher.Constraint("Equal", 52, 54))
sketch1.addConstraint(Sketcher.Constraint("Equal", 54, 56))
sketch1.addConstraint(Sketcher.Constraint("Equal", 56, 58))
sketch1.addConstraint(Sketcher.Constraint("Equal", 62, 64))
sketch1.addConstraint(Sketcher.Constraint("Equal", 64, 66))
sketch1.addConstraint(Sketcher.Constraint("Equal", 66, 68))
sketch1.addConstraint(Sketcher.Constraint("Equal", 68, 70))
sketch1.addConstraint(Sketcher.Constraint("Equal", 70, 72))
sketch1.addConstraint(Sketcher.Constraint("Equal", 72, 74))
sketch1.addConstraint(Sketcher.Constraint("Radius", 1, Q("26.992681 mm")))
sketch1.addConstraint(Sketcher.Constraint("Radius", 3, Q("23.99268 mm")))
sketch1.addConstraint(Sketcher.Constraint("Distance", 0, Q("3.1199 mm")))
sketch1.addConstraint(Sketcher.Constraint("DistanceY", 7, 1, -1, 1, Q("18.1216 mm")))
sketch1.addConstraint(Sketcher.Constraint("DistanceY", 13, 1, -1, 1, Q("11.355201 mm")))
sketch1.addConstraint(Sketcher.Constraint("DistanceY", 0, 2, -1, 1, Q("26.798461 mm")))
sketch1.addConstraint(Sketcher.Constraint("DistanceX", 1, 1, -1, 1, Q("5.207159 mm")))
sketch1.addConstraint(Sketcher.Constraint("DistanceY", 3, 1, -1, 1, Q("22.093768 mm")))
sketch1.addConstraint(Sketcher.Constraint("DistanceY", 5, 1, -1, 1, Q("23.58026 mm")))
sketch1.addConstraint(Sketcher.Constraint("DistanceX", 9, 1, -1, 1, Q("19.780561 mm")))
sketch1.addConstraint(Sketcher.Constraint("DistanceX", 11, 1, -1, 1, Q("20.554662 mm")))
pad1 = doc.addObject("PartDesign::Pad", "Pad")
body.addObject(pad1)
pad1.Profile = sketch1
pad1.setExpression("Length", "Params.pad1_length")
doc.recompute()

fillet = doc.addObject("PartDesign::Fillet", "Fillet")
body.addObject(fillet)
fillet.Base = (pad1, edges_at(pad1, [
    (3.232, -1.25, -26.798),
    (5.207, -1.25, -26.486),
    (11.355, -1.25, -24.488),
    (13.137, -1.25, -23.58),
    (18.367, -1.25, -19.781),
    (19.781, -1.25, -18.367),
    (23.58, -1.25, -13.137),
    (24.488, -1.25, -11.355),
    (26.486, -1.25, -5.207),
    (26.798, -1.25, -3.232),
    (26.798, -1.25, 3.232),
    (26.486, -1.25, 5.207),
    (24.488, -1.25, 11.355),
    (23.58, -1.25, 13.137),
    (19.781, -1.25, 18.367),
    (18.367, -1.25, 19.781),
    (13.137, -1.25, 23.58),
    (11.355, -1.25, 24.488),
    (5.207, -1.25, 26.486),
    (3.232, -1.25, 26.798),
    (-3.232, -1.25, 26.798),
    (-5.207, -1.25, 26.486),
    (-11.355, -1.25, 24.488),
    (-13.137, -1.25, 23.58),
    (-18.367, -1.25, 19.781),
    (-19.781, -1.25, 18.367),
    (-23.58, -1.25, 13.137),
    (-24.488, -1.25, 11.355),
    (-26.486, -1.25, 5.207),
    (-26.798, -1.25, 3.232),
    (-26.798, -1.25, -3.232),
    (-26.486, -1.25, -5.207),
    (-24.488, -1.25, -11.355),
    (-23.58, -1.25, -13.137),
    (-19.781, -1.25, -18.367),
    (-18.367, -1.25, -19.781),
    (-13.137, -1.25, -23.58),
    (-11.355, -1.25, -24.488),
    (-5.207, -1.25, -26.486),
    (-3.232, -1.25, -26.798),
]))
fillet.setExpression("Radius", "Params.fillet_radius")

# Sketch on XZ plane
sketch2 = doc.addObject("Sketcher::SketchObject", "Sketch001")
body.addObject(sketch2)
sketch2.AttachmentSupport = (doc.XZ_Plane, [""])
sketch2.MapMode = "FlatFace"
sketch2.AttachmentOffset = App.Placement(App.Vector(0, 0, 2.5), App.Rotation())
sketch2.addGeometry(Part.Circle(App.Vector(0, 0, 0), App.Vector(0, 0, 1), 2), False)
sketch2.addConstraint(Sketcher.Constraint("Coincident", 0, 3, -1, 1))
sketch2.addConstraint(Sketcher.Constraint("Diameter", 0, Q("4 mm")))
sketch2.setExpression("Constraints[1]", "Params.sketch2_diameter")
pocket1 = doc.addObject("PartDesign::Pocket", "Pocket")
body.addObject(pocket1)
pocket1.Profile = sketch2
pocket1.Type = "ThroughAll"

# Sketch on XZ plane
sketch3 = doc.addObject("Sketcher::SketchObject", "Sketch002")
body.addObject(sketch3)
sketch3.AttachmentSupport = (doc.XZ_Plane, [""])
sketch3.MapMode = "FlatFace"
sketch3.addGeometry(Part.LineSegment(App.Vector(8.763608, -12.173708, 0), App.Vector(5.895358, -8.077422, 0)), False)
sketch3.addGeometry(Part.ArcOfCircle(Part.Circle(App.Vector(0, 0, 0), App.Vector(0, 0, 1), 10), math.radians(-53.875924), math.radians(-6.124076)), False)
sketch3.addGeometry(Part.LineSegment(App.Vector(9.942932, -1.066819, 0), App.Vector(14.924545, -1.502653, 0)), False)
sketch3.addGeometry(Part.ArcOfCircle(Part.Circle(App.Vector(0, 0, 0), App.Vector(0, 0, 1), 15), math.radians(-54.250643), math.radians(-5.749357)), False)
sketch3.addGeometry(Part.LineSegment(App.Vector(6.160936, 13.676362, 0), App.Vector(4.047574, 9.144241, 0)), False)
sketch3.addGeometry(Part.ArcOfCircle(Part.Circle(App.Vector(0, 0, 0), App.Vector(0, 0, 1), 10), math.radians(66.124076), math.radians(113.875924)), False)
sketch3.addGeometry(Part.LineSegment(App.Vector(-4.047574, 9.144241, 0), App.Vector(-6.160936, 13.676362, 0)), False)
sketch3.addGeometry(Part.ArcOfCircle(Part.Circle(App.Vector(0, 0, 0), App.Vector(0, 0, 1), 15), math.radians(65.749357), math.radians(114.250643)), False)
sketch3.addGeometry(Part.LineSegment(App.Vector(-14.924545, -1.502653, 0), App.Vector(-9.942932, -1.066819, 0)), False)
sketch3.addGeometry(Part.ArcOfCircle(Part.Circle(App.Vector(0, 0, 0), App.Vector(0, 0, 1), 10), math.radians(-173.875924), math.radians(-126.124076)), False)
sketch3.addGeometry(Part.LineSegment(App.Vector(-5.895358, -8.077422, 0), App.Vector(-8.763608, -12.173708, 0)), False)
sketch3.addGeometry(Part.ArcOfCircle(Part.Circle(App.Vector(0, 0, 0), App.Vector(0, 0, 1), 15), math.radians(-174.250643), math.radians(-125.749357)), False)
sketch3.addConstraint(Sketcher.Constraint("Coincident", 0, 2, 1, 1))
sketch3.addConstraint(Sketcher.Constraint("Coincident", 1, 2, 2, 1))
sketch3.addConstraint(Sketcher.Constraint("Coincident", 2, 2, 3, 2))
sketch3.addConstraint(Sketcher.Constraint("Coincident", 3, 1, 0, 1))
sketch3.addConstraint(Sketcher.Constraint("Coincident", 4, 2, 5, 1))
sketch3.addConstraint(Sketcher.Constraint("Coincident", 5, 2, 6, 1))
sketch3.addConstraint(Sketcher.Constraint("Coincident", 6, 2, 7, 2))
sketch3.addConstraint(Sketcher.Constraint("Coincident", 7, 1, 4, 1))
sketch3.addConstraint(Sketcher.Constraint("Coincident", 8, 2, 9, 1))
sketch3.addConstraint(Sketcher.Constraint("Coincident", 9, 2, 10, 1))
sketch3.addConstraint(Sketcher.Constraint("Coincident", 10, 2, 11, 2))
sketch3.addConstraint(Sketcher.Constraint("Coincident", 11, 1, 8, 1))
sketch3.addConstraint(Sketcher.Constraint("Coincident", 1, 3, -1, 1))
sketch3.addConstraint(Sketcher.Constraint("Coincident", 3, 3, -1, 1))
sketch3.addConstraint(Sketcher.Constraint("Coincident", 5, 3, -1, 1))
sketch3.addConstraint(Sketcher.Constraint("Coincident", 7, 3, -1, 1))
sketch3.addConstraint(Sketcher.Constraint("Coincident", 9, 3, -1, 1))
sketch3.addConstraint(Sketcher.Constraint("Coincident", 11, 3, -1, 1))
sketch3.addConstraint(Sketcher.Constraint("Equal", 1, 5))
sketch3.addConstraint(Sketcher.Constraint("Equal", 3, 7))
sketch3.addConstraint(Sketcher.Constraint("Equal", 5, 9))
sketch3.addConstraint(Sketcher.Constraint("Equal", 7, 11))
sketch3.addConstraint(Sketcher.Constraint("Horizontal", 4, 2, 5, 2))
sketch3.addConstraint(Sketcher.Constraint("Horizontal", 6, 2, 7, 1))
sketch3.addConstraint(Sketcher.Constraint("Horizontal", 1, 2, 8, 2))
sketch3.addConstraint(Sketcher.Constraint("Horizontal", 0, 2, 9, 2))
sketch3.addConstraint(Sketcher.Constraint("Horizontal", 3, 1, 10, 2))
sketch3.addConstraint(Sketcher.Constraint("Horizontal", 2, 2, 11, 1))
sketch3.addConstraint(Sketcher.Constraint("Equal", 0, 2))
sketch3.addConstraint(Sketcher.Constraint("Equal", 2, 4))
sketch3.addConstraint(Sketcher.Constraint("Radius", 1, Q("10 mm")))
sketch3.addConstraint(Sketcher.Constraint("Radius", 3, Q("15 mm")))
sketch3.addConstraint(Sketcher.Constraint("Angle", 0, Q("125 deg")))
sketch3.addConstraint(Sketcher.Constraint("Angle", 2, Q("-5 deg")))
sketch3.addConstraint(Sketcher.Constraint("Angle", 4, Q("-115 deg")))
sketch3.addConstraint(Sketcher.Constraint("DistanceX", -1, 1, 0, 2, Q("5.895358 mm")))
sketch3.setExpression("Constraints[30]", "Params.sketch3_radius")
sketch3.setExpression("Constraints[31]", "Params.sketch3_radius2")
pocket2 = doc.addObject("PartDesign::Pocket", "Pocket001")
body.addObject(pocket2)
pocket2.Profile = sketch3
pocket2.setExpression("Length", "Params.pocket2_length")
pocket2.Reversed = True

doc.recompute()
